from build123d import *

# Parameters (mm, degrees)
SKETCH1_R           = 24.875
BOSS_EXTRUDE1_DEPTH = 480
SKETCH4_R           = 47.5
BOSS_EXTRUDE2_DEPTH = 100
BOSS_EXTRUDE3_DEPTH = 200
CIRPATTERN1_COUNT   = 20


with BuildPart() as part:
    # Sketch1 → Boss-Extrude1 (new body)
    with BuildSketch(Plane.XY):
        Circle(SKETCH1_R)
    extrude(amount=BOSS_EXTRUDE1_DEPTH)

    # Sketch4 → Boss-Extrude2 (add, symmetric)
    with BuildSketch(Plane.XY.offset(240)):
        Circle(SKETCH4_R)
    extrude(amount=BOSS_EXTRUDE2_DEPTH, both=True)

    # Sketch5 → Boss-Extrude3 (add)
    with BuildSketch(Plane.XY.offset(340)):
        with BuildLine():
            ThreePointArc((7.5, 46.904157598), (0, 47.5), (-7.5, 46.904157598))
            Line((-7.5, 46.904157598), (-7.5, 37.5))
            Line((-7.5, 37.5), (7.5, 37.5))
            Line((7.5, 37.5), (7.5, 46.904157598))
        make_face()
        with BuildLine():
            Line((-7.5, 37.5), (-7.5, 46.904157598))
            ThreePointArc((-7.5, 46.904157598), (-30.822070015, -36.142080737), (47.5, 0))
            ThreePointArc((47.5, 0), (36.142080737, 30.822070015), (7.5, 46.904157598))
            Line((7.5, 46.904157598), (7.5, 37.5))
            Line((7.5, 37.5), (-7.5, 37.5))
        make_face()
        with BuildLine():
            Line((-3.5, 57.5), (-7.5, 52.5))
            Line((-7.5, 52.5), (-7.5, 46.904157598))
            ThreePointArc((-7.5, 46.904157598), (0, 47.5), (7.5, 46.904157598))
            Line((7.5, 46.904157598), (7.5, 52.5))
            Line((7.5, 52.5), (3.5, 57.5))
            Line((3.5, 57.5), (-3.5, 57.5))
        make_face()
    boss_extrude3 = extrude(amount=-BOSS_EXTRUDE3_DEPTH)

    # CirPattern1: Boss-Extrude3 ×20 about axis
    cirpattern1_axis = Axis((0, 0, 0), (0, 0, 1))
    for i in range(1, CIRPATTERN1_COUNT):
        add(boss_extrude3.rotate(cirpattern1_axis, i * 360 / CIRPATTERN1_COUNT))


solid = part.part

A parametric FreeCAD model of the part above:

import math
import FreeCAD as App
import Part
import Sketcher
from FreeCAD import Vector

doc = App.newDocument("Part")
body = doc.addObject("PartDesign::Body", "Body")

sketch1 = body.newObject("Sketcher::SketchObject", "Sketch")
sketch1.AttachmentSupport = (doc.getObject("XY_Plane"), [""])
sketch1.MapMode = "FlatFace"
sketch1.addGeometry(Part.Circle(Vector(0, 0, 0), Vector(0, 0, 1), 25), False)
sketch1.addConstraint([
    Sketcher.Constraint("Coincident", 0, 3, -1, 1),
    Sketcher.Constraint("Diameter", 0, 49.75),
])
pad1 = body.newObject("PartDesign::Pad", "Pad")
pad1.Profile = sketch1
pad1.Length = 480

sketch2 = body.newObject("Sketcher::SketchObject", "Sketch001")
sketch2.AttachmentSupport = (doc.getObject("XY_Plane"), [""])
sketch2.MapMode = "FlatFace"
sketch2.AttachmentOffset = App.Placement(Vector(0, 0, 240), App.Rotation())
sketch2.addGeometry(Part.Circle(Vector(0, 0, 0), Vector(0, 0, 1), 48), False)
sketch2.addConstraint([
    Sketcher.Constraint("Coincident", 0, 3, -1, 1),
    Sketcher.Constraint("Diameter", 0, 95.0),
])
pad2 = body.newObject("PartDesign::Pad", "Pad001")
pad2.Profile = sketch2
pad2.Length = 200
pad2.Midplane = True

sketch3 = body.newObject("Sketcher::SketchObject", "Sketch002")
sketch3.AttachmentSupport = (doc.getObject("XY_Plane"), [""])
sketch3.MapMode = "FlatFace"
sketch3.AttachmentOffset = App.Placement(Vector(0, 0, 340), App.Rotation())
sketch3.addGeometry([
    Part.ArcOfCircle(Part.Circle(Vector(0, 0, 0), Vector(0, 0, 1), 48), math.radians(99), math.radians(360)),
    Part.ArcOfCircle(Part.Circle(Vector(0, 0, 0), Vector(0, 0, 1), 47), math.radians(0), math.radians(81)),
    Part.LineSegment(Vector(8, 47, 0), Vector(8, 52, 0)),
    Part.LineSegment(Vector(8, 52, 0), Vector(4, 58, 0)),
    Part.LineSegment(Vector(4, 58, 0), Vector(-4, 58, 0)),
    Part.LineSegment(Vector(-4, 58, 0), Vector(-8, 52, 0)),
    Part.LineSegment(Vector(-8, 52, 0), Vector(-8, 47, 0)),
], False)
sketch3.addConstraint([
    Sketcher.Constraint("Tangent", 0, 2, 1, 1),
    Sketcher.Constraint("Coincident", 1, 2, 2, 1),
    Sketcher.Constraint("Coincident", 2, 2, 3, 1),
    Sketcher.Constraint("Coincident", 3, 2, 4, 1),
    Sketcher.Constraint("Coincident", 4, 2, 5, 1),
    Sketcher.Constraint("Coincident", 5, 2, 6, 1),
    Sketcher.Constraint("Coincident", 6, 2, 0, 1),
    Sketcher.Constraint("Vertical", 2),
    Sketcher.Constraint("Horizontal", 4),
    Sketcher.Constraint("Vertical", 6),
    Sketcher.Constraint("Coincident", 0, 3, -1, 1),
    Sketcher.Constraint("Equal", 0, 1),
    Sketcher.Constraint("Symmetric", 2, 2, 5, 2, -2),
    Sketcher.Constraint("PointOnObject", 0, 2, -1),
    Sketcher.Constraint("Equal", 3, 5),
    Sketcher.Constraint("Radius", 0, 47.5),
    Sketcher.Constraint("DistanceX", 4, 2, 4, 1, 7.0),
    Sketcher.Constraint("DistanceX", 1, 2, 0, 2, 40.0),
    Sketcher.Constraint("DistanceY", 2, 2, 3, 2, 5.0),
    Sketcher.Constraint("DistanceY", -1, 1, 2, 2, 52.5),
])
pad3 = body.newObject("PartDesign::Pad", "Pad002")
pad3.Profile = sketch3
pad3.Length = 200
pad3.Reversed = True
doc.recompute()

polarpattern = body.newObject("PartDesign::PolarPattern", "PolarPattern")
polarpattern.Originals = [pad3]
polarpattern.Axis = (doc.getObject("Z_Axis"), [""])
polarpattern.Angle = 360
polarpattern.Occurrences = 20
body.Tip = polarpattern

doc.recompute()
